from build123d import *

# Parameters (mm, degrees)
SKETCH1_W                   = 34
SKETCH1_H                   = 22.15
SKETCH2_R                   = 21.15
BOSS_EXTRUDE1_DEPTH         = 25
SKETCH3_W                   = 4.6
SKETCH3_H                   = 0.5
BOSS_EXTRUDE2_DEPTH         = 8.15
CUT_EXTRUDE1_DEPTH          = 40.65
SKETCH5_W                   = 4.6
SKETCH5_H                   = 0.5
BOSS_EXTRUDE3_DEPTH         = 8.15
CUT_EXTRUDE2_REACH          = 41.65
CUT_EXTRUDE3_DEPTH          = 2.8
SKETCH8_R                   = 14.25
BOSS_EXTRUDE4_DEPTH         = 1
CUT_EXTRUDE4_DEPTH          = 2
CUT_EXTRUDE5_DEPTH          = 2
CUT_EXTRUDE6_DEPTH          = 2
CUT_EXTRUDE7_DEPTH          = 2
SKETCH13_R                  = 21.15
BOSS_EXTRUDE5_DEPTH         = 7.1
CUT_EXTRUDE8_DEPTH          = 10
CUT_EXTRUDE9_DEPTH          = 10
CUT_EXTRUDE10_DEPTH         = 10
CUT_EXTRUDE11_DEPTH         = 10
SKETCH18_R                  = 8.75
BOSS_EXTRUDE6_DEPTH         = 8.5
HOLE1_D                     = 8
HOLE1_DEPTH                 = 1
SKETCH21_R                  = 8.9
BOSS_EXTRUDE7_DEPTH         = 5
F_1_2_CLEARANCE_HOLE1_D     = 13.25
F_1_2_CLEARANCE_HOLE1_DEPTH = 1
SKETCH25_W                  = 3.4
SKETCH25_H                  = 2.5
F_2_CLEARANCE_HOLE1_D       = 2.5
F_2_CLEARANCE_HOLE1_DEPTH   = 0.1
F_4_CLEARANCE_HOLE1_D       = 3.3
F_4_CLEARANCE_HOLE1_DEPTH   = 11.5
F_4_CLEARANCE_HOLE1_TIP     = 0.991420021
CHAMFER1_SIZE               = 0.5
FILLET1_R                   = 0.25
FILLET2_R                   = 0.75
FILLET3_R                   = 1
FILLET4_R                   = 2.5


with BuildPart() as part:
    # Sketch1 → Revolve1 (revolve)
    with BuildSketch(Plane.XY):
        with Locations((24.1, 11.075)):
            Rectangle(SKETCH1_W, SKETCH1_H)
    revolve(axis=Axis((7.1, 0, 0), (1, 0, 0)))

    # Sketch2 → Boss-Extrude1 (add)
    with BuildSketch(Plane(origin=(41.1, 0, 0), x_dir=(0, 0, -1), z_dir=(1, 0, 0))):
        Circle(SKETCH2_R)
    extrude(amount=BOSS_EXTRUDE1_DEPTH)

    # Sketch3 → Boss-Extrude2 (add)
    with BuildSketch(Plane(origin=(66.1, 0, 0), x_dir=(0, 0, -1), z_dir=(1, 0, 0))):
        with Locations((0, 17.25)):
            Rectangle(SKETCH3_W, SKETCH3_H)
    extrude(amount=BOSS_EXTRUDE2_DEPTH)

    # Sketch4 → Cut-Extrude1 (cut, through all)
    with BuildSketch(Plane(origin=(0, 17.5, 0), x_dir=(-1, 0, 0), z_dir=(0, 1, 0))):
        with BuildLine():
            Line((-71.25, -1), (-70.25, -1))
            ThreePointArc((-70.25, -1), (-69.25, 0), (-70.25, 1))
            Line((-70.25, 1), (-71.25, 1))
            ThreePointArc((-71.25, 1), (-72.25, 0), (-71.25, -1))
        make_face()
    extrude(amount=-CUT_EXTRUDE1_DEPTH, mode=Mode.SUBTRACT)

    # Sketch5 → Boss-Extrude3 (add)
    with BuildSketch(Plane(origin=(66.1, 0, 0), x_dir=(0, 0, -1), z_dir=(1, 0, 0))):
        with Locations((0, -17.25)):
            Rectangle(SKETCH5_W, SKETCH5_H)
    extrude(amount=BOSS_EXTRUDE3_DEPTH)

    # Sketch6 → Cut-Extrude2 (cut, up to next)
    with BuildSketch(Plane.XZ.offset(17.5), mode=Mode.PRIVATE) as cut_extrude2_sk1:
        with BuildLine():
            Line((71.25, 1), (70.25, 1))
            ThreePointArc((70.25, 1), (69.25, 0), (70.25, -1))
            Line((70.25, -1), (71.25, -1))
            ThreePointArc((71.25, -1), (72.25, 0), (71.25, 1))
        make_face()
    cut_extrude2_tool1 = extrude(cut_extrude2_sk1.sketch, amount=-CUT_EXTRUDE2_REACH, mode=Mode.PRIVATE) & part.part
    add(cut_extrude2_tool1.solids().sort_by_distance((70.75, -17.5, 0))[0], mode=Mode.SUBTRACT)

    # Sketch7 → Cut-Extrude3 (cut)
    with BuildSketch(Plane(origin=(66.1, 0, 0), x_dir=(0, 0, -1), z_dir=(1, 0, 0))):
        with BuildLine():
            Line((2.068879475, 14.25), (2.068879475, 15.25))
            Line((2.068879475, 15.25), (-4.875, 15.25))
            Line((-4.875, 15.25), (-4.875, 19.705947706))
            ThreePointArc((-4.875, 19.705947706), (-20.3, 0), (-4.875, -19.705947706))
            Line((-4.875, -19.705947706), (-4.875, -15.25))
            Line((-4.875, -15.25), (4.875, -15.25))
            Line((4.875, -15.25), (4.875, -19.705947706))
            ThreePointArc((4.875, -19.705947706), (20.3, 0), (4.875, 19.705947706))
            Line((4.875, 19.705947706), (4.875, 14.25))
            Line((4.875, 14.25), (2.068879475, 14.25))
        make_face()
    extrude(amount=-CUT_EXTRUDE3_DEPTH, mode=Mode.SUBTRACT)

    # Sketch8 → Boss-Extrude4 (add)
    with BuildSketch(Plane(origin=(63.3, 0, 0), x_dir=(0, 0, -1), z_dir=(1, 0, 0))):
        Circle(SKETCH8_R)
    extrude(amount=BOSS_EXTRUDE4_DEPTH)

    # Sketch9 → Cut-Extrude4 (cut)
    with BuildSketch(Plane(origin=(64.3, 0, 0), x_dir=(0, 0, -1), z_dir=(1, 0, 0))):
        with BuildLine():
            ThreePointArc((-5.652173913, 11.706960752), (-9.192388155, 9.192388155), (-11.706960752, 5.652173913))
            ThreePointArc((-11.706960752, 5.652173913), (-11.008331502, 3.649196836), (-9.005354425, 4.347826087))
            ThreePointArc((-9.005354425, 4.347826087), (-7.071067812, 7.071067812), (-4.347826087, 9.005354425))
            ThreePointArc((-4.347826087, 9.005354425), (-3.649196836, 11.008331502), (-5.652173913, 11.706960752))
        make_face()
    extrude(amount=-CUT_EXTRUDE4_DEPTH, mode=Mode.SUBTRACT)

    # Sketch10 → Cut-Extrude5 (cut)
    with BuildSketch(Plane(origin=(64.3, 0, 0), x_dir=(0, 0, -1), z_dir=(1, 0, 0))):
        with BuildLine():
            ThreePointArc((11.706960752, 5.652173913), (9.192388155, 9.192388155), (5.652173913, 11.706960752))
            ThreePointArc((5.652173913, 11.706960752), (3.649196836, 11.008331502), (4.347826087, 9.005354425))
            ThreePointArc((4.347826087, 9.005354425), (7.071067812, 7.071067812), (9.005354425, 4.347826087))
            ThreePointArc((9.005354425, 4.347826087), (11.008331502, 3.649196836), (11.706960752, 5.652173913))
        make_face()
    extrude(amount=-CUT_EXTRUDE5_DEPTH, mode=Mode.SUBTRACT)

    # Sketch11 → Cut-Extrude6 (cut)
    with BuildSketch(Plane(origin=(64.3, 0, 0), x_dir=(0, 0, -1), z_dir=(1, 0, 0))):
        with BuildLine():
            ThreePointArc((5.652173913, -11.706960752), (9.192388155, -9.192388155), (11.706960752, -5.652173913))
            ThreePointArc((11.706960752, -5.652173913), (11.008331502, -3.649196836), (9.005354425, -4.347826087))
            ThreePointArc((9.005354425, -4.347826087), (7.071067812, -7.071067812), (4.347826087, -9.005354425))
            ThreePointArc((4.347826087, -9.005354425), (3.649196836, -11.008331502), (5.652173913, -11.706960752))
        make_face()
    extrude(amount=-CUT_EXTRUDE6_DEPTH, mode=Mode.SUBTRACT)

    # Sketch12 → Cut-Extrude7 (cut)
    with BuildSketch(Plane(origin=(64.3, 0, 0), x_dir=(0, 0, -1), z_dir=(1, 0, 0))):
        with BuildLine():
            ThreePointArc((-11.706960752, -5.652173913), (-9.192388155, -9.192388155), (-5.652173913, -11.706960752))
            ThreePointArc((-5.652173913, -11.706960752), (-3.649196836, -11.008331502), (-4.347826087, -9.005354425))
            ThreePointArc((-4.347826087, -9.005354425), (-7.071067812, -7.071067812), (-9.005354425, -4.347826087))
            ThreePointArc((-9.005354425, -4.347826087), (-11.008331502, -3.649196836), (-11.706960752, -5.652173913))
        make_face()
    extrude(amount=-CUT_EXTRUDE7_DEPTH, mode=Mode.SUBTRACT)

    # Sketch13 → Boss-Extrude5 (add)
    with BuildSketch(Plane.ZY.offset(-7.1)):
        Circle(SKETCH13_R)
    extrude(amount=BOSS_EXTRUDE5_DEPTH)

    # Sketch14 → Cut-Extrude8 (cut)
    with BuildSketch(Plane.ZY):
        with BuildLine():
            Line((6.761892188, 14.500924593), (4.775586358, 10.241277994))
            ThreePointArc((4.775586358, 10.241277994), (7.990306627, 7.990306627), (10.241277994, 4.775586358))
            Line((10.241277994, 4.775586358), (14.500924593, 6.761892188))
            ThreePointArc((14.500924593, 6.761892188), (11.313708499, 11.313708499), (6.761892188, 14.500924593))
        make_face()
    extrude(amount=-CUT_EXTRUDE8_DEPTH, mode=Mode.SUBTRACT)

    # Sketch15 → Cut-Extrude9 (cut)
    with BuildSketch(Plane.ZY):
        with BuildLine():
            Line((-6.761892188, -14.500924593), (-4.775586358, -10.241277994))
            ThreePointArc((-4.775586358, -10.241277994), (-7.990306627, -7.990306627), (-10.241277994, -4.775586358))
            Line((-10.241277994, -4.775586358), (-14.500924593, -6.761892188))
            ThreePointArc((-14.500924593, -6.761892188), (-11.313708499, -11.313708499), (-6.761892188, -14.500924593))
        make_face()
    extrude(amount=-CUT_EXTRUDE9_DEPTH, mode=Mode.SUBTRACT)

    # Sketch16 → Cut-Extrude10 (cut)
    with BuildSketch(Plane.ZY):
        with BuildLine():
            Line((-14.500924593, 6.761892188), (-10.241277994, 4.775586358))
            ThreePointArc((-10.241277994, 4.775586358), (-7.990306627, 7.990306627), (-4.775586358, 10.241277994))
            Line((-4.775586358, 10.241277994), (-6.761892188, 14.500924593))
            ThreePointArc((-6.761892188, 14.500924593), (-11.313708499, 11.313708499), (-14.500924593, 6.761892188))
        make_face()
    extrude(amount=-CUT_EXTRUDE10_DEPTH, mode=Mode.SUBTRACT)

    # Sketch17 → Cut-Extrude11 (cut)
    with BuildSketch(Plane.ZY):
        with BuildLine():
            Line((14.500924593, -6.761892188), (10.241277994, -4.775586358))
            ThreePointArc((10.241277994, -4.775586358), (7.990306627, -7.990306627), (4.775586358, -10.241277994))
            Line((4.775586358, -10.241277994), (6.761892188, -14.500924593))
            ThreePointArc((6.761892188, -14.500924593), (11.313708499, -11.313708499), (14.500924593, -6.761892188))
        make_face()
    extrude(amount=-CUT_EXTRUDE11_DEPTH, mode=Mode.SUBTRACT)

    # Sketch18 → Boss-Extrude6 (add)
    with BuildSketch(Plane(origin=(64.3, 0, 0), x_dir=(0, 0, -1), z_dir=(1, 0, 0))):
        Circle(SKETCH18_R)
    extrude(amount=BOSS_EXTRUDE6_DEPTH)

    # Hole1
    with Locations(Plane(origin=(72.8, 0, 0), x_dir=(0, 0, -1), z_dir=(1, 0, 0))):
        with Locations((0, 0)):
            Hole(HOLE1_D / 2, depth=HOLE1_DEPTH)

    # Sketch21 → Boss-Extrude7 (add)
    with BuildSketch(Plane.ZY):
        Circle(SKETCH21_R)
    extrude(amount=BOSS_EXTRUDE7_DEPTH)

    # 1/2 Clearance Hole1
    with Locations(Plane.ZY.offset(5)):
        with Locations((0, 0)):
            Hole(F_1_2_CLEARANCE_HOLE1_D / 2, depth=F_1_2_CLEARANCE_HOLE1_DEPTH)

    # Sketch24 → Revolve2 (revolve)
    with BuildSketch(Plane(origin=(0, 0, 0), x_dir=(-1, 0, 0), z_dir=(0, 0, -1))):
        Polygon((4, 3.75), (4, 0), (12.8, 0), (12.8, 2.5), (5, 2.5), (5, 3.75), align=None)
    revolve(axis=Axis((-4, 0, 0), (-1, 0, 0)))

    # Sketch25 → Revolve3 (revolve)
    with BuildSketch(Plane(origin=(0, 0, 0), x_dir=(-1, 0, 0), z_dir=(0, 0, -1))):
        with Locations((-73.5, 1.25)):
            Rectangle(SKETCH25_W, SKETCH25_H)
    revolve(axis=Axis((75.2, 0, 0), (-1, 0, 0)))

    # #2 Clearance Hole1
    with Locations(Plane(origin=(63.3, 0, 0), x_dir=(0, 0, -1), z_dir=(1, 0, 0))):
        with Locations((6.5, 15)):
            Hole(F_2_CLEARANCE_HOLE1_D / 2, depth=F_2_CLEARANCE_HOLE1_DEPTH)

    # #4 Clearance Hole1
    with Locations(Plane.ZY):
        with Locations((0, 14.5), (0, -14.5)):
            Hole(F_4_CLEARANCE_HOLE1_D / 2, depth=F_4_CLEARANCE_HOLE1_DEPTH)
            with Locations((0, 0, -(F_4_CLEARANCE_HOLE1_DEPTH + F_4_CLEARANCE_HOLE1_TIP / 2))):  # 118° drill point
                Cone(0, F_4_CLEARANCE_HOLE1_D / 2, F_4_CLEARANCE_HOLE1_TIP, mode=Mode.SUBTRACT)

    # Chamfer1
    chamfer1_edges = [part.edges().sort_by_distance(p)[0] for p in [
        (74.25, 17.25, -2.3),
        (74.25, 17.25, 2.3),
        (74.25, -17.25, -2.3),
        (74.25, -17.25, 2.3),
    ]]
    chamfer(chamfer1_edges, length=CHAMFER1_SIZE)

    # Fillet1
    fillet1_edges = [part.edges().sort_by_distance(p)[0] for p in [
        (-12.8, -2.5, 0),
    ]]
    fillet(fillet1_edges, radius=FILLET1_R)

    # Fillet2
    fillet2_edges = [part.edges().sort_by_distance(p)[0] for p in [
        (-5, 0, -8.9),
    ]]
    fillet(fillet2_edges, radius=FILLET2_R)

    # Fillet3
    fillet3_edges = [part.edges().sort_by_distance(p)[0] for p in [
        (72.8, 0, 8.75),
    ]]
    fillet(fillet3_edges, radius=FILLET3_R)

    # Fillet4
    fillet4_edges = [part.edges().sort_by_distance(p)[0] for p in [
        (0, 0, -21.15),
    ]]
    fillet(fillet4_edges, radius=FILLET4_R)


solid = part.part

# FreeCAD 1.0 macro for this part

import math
import FreeCAD as App
import Part
import Sketcher

V = App.Vector
Q = App.Units.Quantity


def edges_at(feature, points):
    """Names of the edges that pass closest to the given points."""
    edges = feature.Shape.Edges
    near = lambda p: min(range(len(edges)), key=lambda i: edges[i].distToShape(Part.Vertex(*p))[0])
    return sorted({f"Edge{near(p) + 1}" for p in points})


def add_polygon(sketch, points):
    """Adds a closed chain of lines whose ends are joined by coincident constraints."""
    first, n = sketch.GeometryCount, len(points)
    for a, b in zip(points, points[1:] + points[:1]):
        sketch.addGeometry(Part.LineSegment(App.Vector(*a, 0), App.Vector(*b, 0)), False)
    for i in range(n):
        sketch.addConstraint(Sketcher.Constraint("Coincident", first + i, 2, first + (i + 1) % n, 1))

doc = App.newDocument("Part")
body = doc.addObject("PartDesign::Body", "Body")

# Sketch on XY plane
sketch1 = body.newObject("Sketcher::SketchObject", "Sketch")
sketch1.AttachmentSupport = (doc.getObject("XY_Plane"), [""])
sketch1.MapMode = "FlatFace"
add_polygon(sketch1, [(7, 22), (7, 0), (41, 0), (41, 22)])  # lines 0-3
sketch1.addConstraint(Sketcher.Constraint("Vertical", 0))
sketch1.addConstraint(Sketcher.Constraint("Horizontal", 1))
sketch1.addConstraint(Sketcher.Constraint("Vertical", 2))
sketch1.addConstraint(Sketcher.Constraint("Horizontal", 3))
sketch1.addConstraint(Sketcher.Constraint("PointOnObject", 0, 2, -1))
sketch1.addConstraint(Sketcher.Constraint("DistanceX", 1, 1, 1, 2, 34.0))
sketch1.addConstraint(Sketcher.Constraint("DistanceY", 0, 2, 0, 1, 22.15))
sketch1.addConstraint(Sketcher.Constraint("DistanceX", -1, 1, 0, 2, 7.1))
revolution = body.newObject("PartDesign::Revolution", "Revolution")
revolution.Profile = sketch1
revolution.ReferenceAxis = (sketch1, ["H_Axis"])
revolution.Angle = 360

# Sketch on YZ plane
sketch2 = body.newObject("Sketcher::SketchObject", "Sketch001")
sketch2.AttachmentSupport = (doc.getObject("YZ_Plane"), [""])
sketch2.MapMode = "FlatFace"
sketch2.AttachmentOffset = App.Placement(V(0, 0, 41.1), App.Rotation())
sketch2.addGeometry(Part.Circle(V(0, 0, 0), V(0, 0, 1), 21), False)
sketch2.addConstraint(Sketcher.Constraint("Coincident", 0, 3, -1, 1))
sketch2.addConstraint(Sketcher.Constraint("Diameter", 0, 42.3))
pad1 = body.newObject("PartDesign::Pad", "Pad")
pad1.Profile = sketch2
pad1.Length = 25

# Sketch on YZ plane
sketch3 = body.newObject("Sketcher::SketchObject", "Sketch002")
sketch3.AttachmentSupport = (doc.getObject("YZ_Plane"), [""])
sketch3.MapMode = "FlatFace"
sketch3.AttachmentOffset = App.Placement(V(0, 0, 66.1), App.Rotation())
add_polygon(sketch3, [(17.5, 2.3), (17, 2.3), (17, -2.3), (17.5, -2.3)])  # lines 0-3
sketch3.addConstraint(Sketcher.Constraint("Horizontal", 0))
sketch3.addConstraint(Sketcher.Constraint("Vertical", 1))
sketch3.addConstraint(Sketcher.Constraint("Horizontal", 2))
sketch3.addConstraint(Sketcher.Constraint("Vertical", 3))
sketch3.addConstraint(Sketcher.Constraint("DistanceX", 0, 2, 0, 1, 0.5))
sketch3.addConstraint(Sketcher.Constraint("DistanceY", 1, 2, 1, 1, 4.6))
sketch3.addConstraint(Sketcher.Constraint("DistanceX", -1, 1, 0, 2, 17.0))
sketch3.addConstraint(Sketcher.Constraint("DistanceY", -1, 1, 0, 2, 2.3))
pad2 = body.newObject("PartDesign::Pad", "Pad001")
pad2.Profile = sketch3
pad2.Length = 8.15

# Sketch on XZ plane
sketch4 = body.newObject("Sketcher::SketchObject", "Sketch003")
sketch4.AttachmentSupport = (doc.getObject("XZ_Plane"), [""])
sketch4.MapMode = "FlatFace"
sketch4.AttachmentOffset = App.Placement(V(0, 0, -17.5), App.Rotation())
sketch4.addGeometry(Part.LineSegment(V(71.2, -1, 0), V(70.2, -1, 0)), False)
sketch4.addGeometry(Part.ArcOfCircle(Part.Circle(V(70.2, 0, 0), V(0, 0, 1), 1), math.radians(90), math.radians(270)), False)
sketch4.addGeometry(Part.LineSegment(V(70.2, 1, 0), V(71.2, 1, 0)), False)
sketch4.addGeometry(Part.ArcOfCircle(Part.Circle(V(71.2, 0, 0), V(0, 0, 1), 1), math.radians(-90), math.radians(90)), False)
sketch4.addConstraint(Sketcher.Constraint("Tangent", 0, 2, 1, 2))
sketch4.addConstraint(Sketcher.Constraint("Tangent", 1, 1, 2, 1))
sketch4.addConstraint(Sketcher.Constraint("Tangent", 2, 2, 3, 2))
sketch4.addConstraint(Sketcher.Constraint("Tangent", 3, 1, 0, 1))
sketch4.addConstraint(Sketcher.Constraint("Horizontal", 0))
sketch4.addConstraint(Sketcher.Constraint("Horizontal", 2))
sketch4.addConstraint(Sketcher.Constraint("PointOnObject", 1, 3, -1))
sketch4.addConstraint(Sketcher.Constraint("Radius", 1, 1.0))
sketch4.addConstraint(Sketcher.Constraint("DistanceX", 0, 2, 0, 1, 1.0))
sketch4.addConstraint(Sketcher.Constraint("DistanceX", -1, 1, 1, 3, 70.25))
pocket1 = body.newObject("PartDesign::Pocket", "Pocket")
pocket1.Profile = sketch4
pocket1.Type = "ThroughAll"
pocket1.Reversed = True

# Sketch on YZ plane
sketch5 = body.newObject("Sketcher::SketchObject", "Sketch004")
sketch5.AttachmentSupport = (doc.getObject("YZ_Plane"), [""])
sketch5.MapMode = "FlatFace"
sketch5.AttachmentOffset = App.Placement(V(0, 0, 66.1), App.Rotation())
add_polygon(sketch5, [(-17, 2.3), (-17.5, 2.3), (-17.5, -2.3), (-17, -2.3)])  # lines 0-3
sketch5.addConstraint(Sketcher.Constraint("Horizontal", 0))
sketch5.addConstraint(Sketcher.Constraint("Vertical", 1))
sketch5.addConstraint(Sketcher.Constraint("Horizontal", 2))
sketch5.addConstraint(Sketcher.Constraint("Vertical", 3))
sketch5.addConstraint(Sketcher.Constraint("DistanceX", 0, 2, 0, 1, 0.5))
sketch5.addConstraint(Sketcher.Constraint("DistanceY", 1, 2, 1, 1, 4.6))
sketch5.addConstraint(Sketcher.Constraint("DistanceX", 2, 2, -1, 1, 17.0))
sketch5.addConstraint(Sketcher.Constraint("DistanceY", -1, 1, 0, 2, 2.3))
pad3 = body.newObject("PartDesign::Pad", "Pad002")
pad3.Profile = sketch5
pad3.Length = 8.15

# Sketch on XZ plane
sketch6 = body.newObject("Sketcher::SketchObject", "Sketch005")
sketch6.AttachmentSupport = (doc.getObject("XZ_Plane"), [""])
sketch6.MapMode = "FlatFace"
sketch6.AttachmentOffset = App.Placement(V(0, 0, 17.5), App.Rotation())
sketch6.addGeometry(Part.LineSegment(V(71.2, 1, 0), V(70.2, 1, 0)), False)
sketch6.addGeometry(Part.ArcOfCircle(Part.Circle(V(70.2, 0, 0), V(0, 0, 1), 1), math.radians(90), math.radians(270)), False)
sketch6.addGeometry(Part.LineSegment(V(70.2, -1, 0), V(71.2, -1, 0)), False)
sketch6.addGeometry(Part.ArcOfCircle(Part.Circle(V(71.2, 0, 0), V(0, 0, 1), 1), math.radians(-90), math.radians(90)), False)
sketch6.addConstraint(Sketcher.Constraint("Tangent", 0, 2, 1, 1))
sketch6.addConstraint(Sketcher.Constraint("Tangent", 1, 2, 2, 1))
sketch6.addConstraint(Sketcher.Constraint("Tangent", 2, 2, 3, 1))
sketch6.addConstraint(Sketcher.Constraint("Tangent", 3, 2, 0, 1))
sketch6.addConstraint(Sketcher.Constraint("Horizontal", 0))
sketch6.addConstraint(Sketcher.Constraint("Horizontal", 2))
sketch6.addConstraint(Sketcher.Constraint("PointOnObject", 1, 3, -1))
sketch6.addConstraint(Sketcher.Constraint("Radius", 1, 1.0))
sketch6.addConstraint(Sketcher.Constraint("DistanceX", 0, 2, 0, 1, 1.0))
sketch6.addConstraint(Sketcher.Constraint("DistanceX", -1, 1, 1, 3, 70.25))
pocket2 = body.newObject("PartDesign::Pocket", "Pocket001")
pocket2.Profile = sketch6
pocket2.Type = "UpToFirst"

# Sketch on YZ plane
sketch7 = body.newObject("Sketcher::SketchObject", "Sketch006")
sketch7.AttachmentSupport = (doc.getObject("YZ_Plane"), [""])
sketch7.MapMode = "FlatFace"
sketch7.AttachmentOffset = App.Placement(V(0, 0, 66.1), App.Rotation())
sketch7.addGeometry(Part.LineSegment(V(14.2, -2.1, 0), V(15.2, -2.1, 0)), False)
sketch7.addGeometry(Part.LineSegment(V(15.2, -2.1, 0), V(15.2, 4.9, 0)), False)
sketch7.addGeometry(Part.LineSegment(V(15.2, 4.9, 0), V(19.7, 4.9, 0)), False)
sketch7.addGeometry(Part.ArcOfCircle(Part.Circle(V(0, 0, 0), V(0, 0, 1), 20.3), math.radians(14), math.radians(166)), False)
sketch7.addGeometry(Part.LineSegment(V(-19.7, 4.9, 0), V(-15.2, 4.9, 0)), False)
sketch7.addGeometry(Part.LineSegment(V(-15.2, 4.9, 0), V(-15.2, -4.9, 0)), False)
sketch7.addGeometry(Part.LineSegment(V(-15.2, -4.9, 0), V(-19.7, -4.9, 0)), False)
sketch7.addGeometry(Part.ArcOfCircle(Part.Circle(V(0, 0, 0), V(0, 0, 1), 20.3), math.radians(-166), math.radians(-14)), False)
sketch7.addGeometry(Part.LineSegment(V(19.7, -4.9, 0), V(14.2, -4.9, 0)), False)
sketch7.addGeometry(Part.LineSegment(V(14.2, -4.9, 0), V(14.2, -2.1, 0)), False)
sketch7.addConstraint(Sketcher.Constraint("Coincident", 0, 2, 1, 1))
sketch7.addConstraint(Sketcher.Constraint("Coincident", 1, 2, 2, 1))
sketch7.addConstraint(Sketcher.Constraint("Coincident", 2, 2, 3, 1))
sketch7.addConstraint(Sketcher.Constraint("Coincident", 3, 2, 4, 1))
sketch7.addConstraint(Sketcher.Constraint("Coincident", 4, 2, 5, 1))
sketch7.addConstraint(Sketcher.Constraint("Coincident", 5, 2, 6, 1))
sketch7.addConstraint(Sketcher.Constraint("Coincident", 6, 2, 7, 1))
sketch7.addConstraint(Sketcher.Constraint("Coincident", 7, 2, 8, 1))
sketch7.addConstraint(Sketcher.Constraint("Coincident", 8, 2, 9, 1))
sketch7.addConstraint(Sketcher.Constraint("Coincident", 9, 2, 0, 1))
sketch7.addConstraint(Sketcher.Constraint("Horizontal", 0))
sketch7.addConstraint(Sketcher.Constraint("Vertical", 1))
sketch7.addConstraint(Sketcher.Constraint("Horizontal", 2))
sketch7.addConstraint(Sketcher.Constraint("Horizontal", 4))
sketch7.addConstraint(Sketcher.Constraint("Vertical", 5))
sketch7.addConstraint(Sketcher.Constraint("Horizontal", 6))
sketch7.addConstraint(Sketcher.Constraint("Horizontal", 8))
sketch7.addConstraint(Sketcher.Constraint("Vertical", 9))
sketch7.addConstraint(Sketcher.Constraint("Coincident", 3, 3, -1, 1))
sketch7.addConstraint(Sketcher.Constraint("Coincident", 7, 3, -1, 1))
sketch7.addConstraint(Sketcher.Constraint("Equal", 3, 7))
sketch7.addConstraint(Sketcher.Constraint("Symmetric", 1, 2, 5, 2, -1, 1))
sketch7.addConstraint(Sketcher.Constraint("Horizontal", 2, 2, 3, 2))
sketch7.addConstraint(Sketcher.Constraint("Horizontal", 6, 2, 7, 2))
sketch7.addConstraint(Sketcher.Constraint("Radius", 3, 20.3))
sketch7.addConstraint(Sketcher.Constraint("DistanceX", 0, 1, 0, 2, 1.0))
sketch7.addConstraint(Sketcher.Constraint("DistanceY", 5, 2, 5, 1, 9.75))
sketch7.addConstraint(Sketcher.Constraint("DistanceX", 4, 2, 1, 2, 30.5))
sketch7.addConstraint(Sketcher.Constraint("DistanceY", 1, 1, 1, 2, 6.943879))
pocket3 = body.newObject("PartDesign::Pocket", "Pocket002")
pocket3.Profile = sketch7
pocket3.Length = 2.8

# Sketch on YZ plane
sketch8 = body.newObject("Sketcher::SketchObject", "Sketch007")
sketch8.AttachmentSupport = (doc.getObject("YZ_Plane"), [""])
sketch8.MapMode = "FlatFace"
sketch8.AttachmentOffset = App.Placement(V(0, 0, 63.3), App.Rotation())
sketch8.addGeometry(Part.Circle(V(0, 0, 0), V(0, 0, 1), 14), False)
sketch8.addConstraint(Sketcher.Constraint("Coincident", 0, 3, -1, 1))
sketch8.addConstraint(Sketcher.Constraint("Diameter", 0, 28.5))
pad4 = body.newObject("PartDesign::Pad", "Pad003")
pad4.Profile = sketch8
pad4.Length = 1

# Sketch on YZ plane
sketch9 = body.newObject("Sketcher::SketchObject", "Sketch008")
sketch9.AttachmentSupport = (doc.getObject("YZ_Plane"), [""])
sketch9.MapMode = "FlatFace"
sketch9.AttachmentOffset = App.Placement(V(0, 0, 64.3), App.Rotation())
sketch9.addGeometry(Part.ArcOfCircle(Part.Circle(V(0, 0, 0), V(0, 0, 1), 13), math.radians(26), math.radians(64)), False)
sketch9.addGeometry(Part.ArcOfCircle(Part.Circle(V(5, 10.4, 0), V(0, 0, 1), 1.5), math.radians(64), math.radians(244)), False)
sketch9.addGeometry(Part.ArcOfCircle(Part.Circle(V(0, 0, 0), V(0, 0, 1), 10), math.radians(26), math.radians(64)), False)
sketch9.addGeometry(Part.ArcOfCircle(Part.Circle(V(10.4, 5, 0), V(0, 0, 1), 1.5), math.radians(-154), math.radians(26)), False)
sketch9.addConstraint(Sketcher.Constraint("Tangent", 0, 2, 1, 1))
sketch9.addConstraint(Sketcher.Constraint("Tangent", 1, 2, 2, 2))
sketch9.addConstraint(Sketcher.Constraint("Tangent", 2, 1, 3, 1))
sketch9.addConstraint(Sketcher.Constraint("Tangent", 3, 2, 0, 1))
sketch9.addConstraint(Sketcher.Constraint("Coincident", 0, 3, -1, 1))
sketch9.addConstraint(Sketcher.Constraint("Coincident", 2, 3, -1, 1))
sketch9.addConstraint(Sketcher.Constraint("Radius", 0, 13.0))
sketch9.addConstraint(Sketcher.Constraint("Radius", 2, 10.0))
sketch9.addConstraint(Sketcher.Constraint("DistanceX", -1, 1, 1, 3, 5.0))
sketch9.addConstraint(Sketcher.Constraint("DistanceY", -1, 1, 3, 3, 5.0))
pocket4 = body.newObject("PartDesign::Pocket", "Pocket003")
pocket4.Profile = sketch9
pocket4.Length = 2

# Sketch on YZ plane
sketch10 = body.newObject("Sketcher::SketchObject", "Sketch009")
sketch10.AttachmentSupport = (doc.getObject("YZ_Plane"), [""])
sketch10.MapMode = "FlatFace"
sketch10.AttachmentOffset = App.Placement(V(0, 0, 64.3), App.Rotation())
sketch10.addGeometry(Part.ArcOfCircle(Part.Circle(V(0, 0, 0), V(0, 0, 1), 13), math.radians(-64), math.radians(-26)), False)
sketch10.addGeometry(Part.ArcOfCircle(Part.Circle(V(10.4, -5, 0), V(0, 0, 1), 1.5), math.radians(-26), math.radians(154)), False)
sketch10.addGeometry(Part.ArcOfCircle(Part.Circle(V(0, 0, 0), V(0, 0, 1), 10), math.radians(-64), math.radians(-26)), False)
sketch10.addGeometry(Part.ArcOfCircle(Part.Circle(V(5, -10.4, 0), V(0, 0, 1), 1.5), math.radians(116), math.radians(296)), False)
sketch10.addConstraint(Sketcher.Constraint("Tangent", 0, 2, 1, 1))
sketch10.addConstraint(Sketcher.Constraint("Tangent", 1, 2, 2, 2))
sketch10.addConstraint(Sketcher.Constraint("Tangent", 2, 1, 3, 1))
sketch10.addConstraint(Sketcher.Constraint("Tangent", 3, 2, 0, 1))
sketch10.addConstraint(Sketcher.Constraint("Coincident", 0, 3, -1, 1))
sketch10.addConstraint(Sketcher.Constraint("Coincident", 2, 3, -1, 1))
sketch10.addConstraint(Sketcher.Constraint("Radius", 0, 13.0))
sketch10.addConstraint(Sketcher.Constraint("Radius", 2, 10.0))
sketch10.addConstraint(Sketcher.Constraint("DistanceY", 1, 3, -1, 1, 5.0))
sketch10.addConstraint(Sketcher.Constraint("DistanceX", -1, 1, 3, 3, 5.0))
pocket5 = body.newObject("PartDesign::Pocket", "Pocket004")
pocket5.Profile = sketch10
pocket5.Length = 2

# Sketch on YZ plane
sketch11 = body.newObject("Sketcher::SketchObject", "Sketch010")
sketch11.AttachmentSupport = (doc.getObject("YZ_Plane"), [""])
sketch11.MapMode = "FlatFace"
sketch11.AttachmentOffset = App.Placement(V(0, 0, 64.3), App.Rotation())
sketch11.addGeometry(Part.ArcOfCircle(Part.Circle(V(0, 0, 0), V(0, 0, 1), 13), math.radians(-154), math.radians(-116)), False)
sketch11.addGeometry(Part.ArcOfCircle(Part.Circle(V(-5, -10.4, 0), V(0, 0, 1), 1.5), math.radians(-116), math.radians(64)), False)
sketch11.addGeometry(Part.ArcOfCircle(Part.Circle(V(0, 0, 0), V(0, 0, 1), 10), math.radians(-154), math.radians(-116)), False)
sketch11.addGeometry(Part.ArcOfCircle(Part.Circle(V(-10.4, -5, 0), V(0, 0, 1), 1.5), math.radians(26), math.radians(206)), False)
sketch11.addConstraint(Sketcher.Constraint("Tangent", 0, 2, 1, 1))
sketch11.addConstraint(Sketcher.Constraint("Tangent", 1, 2, 2, 2))
sketch11.addConstraint(Sketcher.Constraint("Tangent", 2, 1, 3, 1))
sketch11.addConstraint(Sketcher.Constraint("Tangent", 3, 2, 0, 1))
sketch11.addConstraint(Sketcher.Constraint("Coincident", 0, 3, -1, 1))
sketch11.addConstraint(Sketcher.Constraint("Coincident", 2, 3, -1, 1))
sketch11.addConstraint(Sketcher.Constraint("Radius", 0, 13.0))
sketch11.addConstraint(Sketcher.Constraint("Radius", 2, 10.0))
sketch11.addConstraint(Sketcher.Constraint("DistanceX", 1, 3, -1, 1, 5.0))
sketch11.addConstraint(Sketcher.Constraint("DistanceY", 3, 3, -1, 1, 5.0))
pocket6 = body.newObject("PartDesign::Pocket", "Pocket005")
pocket6.Profile = sketch11
pocket6.Length = 2

# Sketch on YZ plane
sketch12 = body.newObject("Sketcher::SketchObject", "Sketch011")
sketch12.AttachmentSupport = (doc.getObject("YZ_Plane"), [""])
sketch12.MapMode = "FlatFace"
sketch12.AttachmentOffset = App.Placement(V(0, 0, 64.3), App.Rotation())
sketch12.addGeometry(Part.ArcOfCircle(Part.Circle(V(0, 0, 0), V(0, 0, 1), 13), math.radians(116), math.radians(154)), False)
sketch12.addGeometry(Part.ArcOfCircle(Part.Circle(V(-10.4, 5, 0), V(0, 0, 1), 1.5), math.radians(154), math.radians(334)), False)
sketch12.addGeometry(Part.ArcOfCircle(Part.Circle(V(0, 0, 0), V(0, 0, 1), 10), math.radians(116), math.radians(154)), False)
sketch12.addGeometry(Part.ArcOfCircle(Part.Circle(V(-5, 10.4, 0), V(0, 0, 1), 1.5), math.radians(-64), math.radians(116)), False)
sketch12.addConstraint(Sketcher.Constraint("Tangent", 0, 2, 1, 1))
sketch12.addConstraint(Sketcher.Constraint("Tangent", 1, 2, 2, 2))
sketch12.addConstraint(Sketcher.Constraint("Tangent", 2, 1, 3, 1))
sketch12.addConstraint(Sketcher.Constraint("Tangent", 3, 2, 0, 1))
sketch12.addConstraint(Sketcher.Constraint("Coincident", 0, 3, -1, 1))
sketch12.addConstraint(Sketcher.Constraint("Coincident", 2, 3, -1, 1))
sketch12.addConstraint(Sketcher.Constraint("Radius", 0, 13.0))
sketch12.addConstraint(Sketcher.Constraint("Radius", 2, 10.0))
sketch12.addConstraint(Sketcher.Constraint("DistanceY", -1, 1, 1, 3, 5.0))
sketch12.addConstraint(Sketcher.Constraint("DistanceX", 3, 3, -1, 1, 5.0))
pocket7 = body.newObject("PartDesign::Pocket", "Pocket006")
pocket7.Profile = sketch12
pocket7.Length = 2

# Sketch on YZ plane
sketch13 = body.newObject("Sketcher::SketchObject", "Sketch012")
sketch13.AttachmentSupport = (doc.getObject("YZ_Plane"), [""])
sketch13.MapMode = "FlatFace"
sketch13.AttachmentOffset = App.Placement(V(0, 0, 7.1), App.Rotation())
sketch13.addGeometry(Part.Circle(V(0, 0, 0), V(0, 0, 1), 21), False)
sketch13.addConstraint(Sketcher.Constraint("Coincident", 0, 3, -1, 1))
sketch13.addConstraint(Sketcher.Constraint("Diameter", 0, 42.3))
pad5 = body.newObject("PartDesign::Pad", "Pad004")
pad5.Profile = sketch13
pad5.Length = 7.1
pad5.Reversed = True

# Sketch on YZ plane
sketch14 = body.newObject("Sketcher::SketchObject", "Sketch013")
sketch14.AttachmentSupport = (doc.getObject("YZ_Plane"), [""])
sketch14.MapMode = "FlatFace"
sketch14.addGeometry(Part.LineSegment(V(14.5, 6.8, 0), V(10.2, 4.8, 0)), False)
sketch14.addGeometry(Part.ArcOfCircle(Part.Circle(V(0, 0, 0), V(0, 0, 1), 11.3), math.radians(25), math.radians(65)), False)
sketch14.addGeometry(Part.LineSegment(V(4.8, 10.2, 0), V(6.8, 14.5, 0)), False)
sketch14.addGeometry(Part.ArcOfCircle(Part.Circle(V(0, 0, 0), V(0, 0, 1), 16), math.radians(25), math.radians(65)), False)
sketch14.addConstraint(Sketcher.Constraint("Coincident", 0, 2, 1, 1))
sketch14.addConstraint(Sketcher.Constraint("Coincident", 1, 2, 2, 1))
sketch14.addConstraint(Sketcher.Constraint("Coincident", 2, 2, 3, 2))
sketch14.addConstraint(Sketcher.Constraint("Coincident", 3, 1, 0, 1))
sketch14.addConstraint(Sketcher.Constraint("Coincident", 1, 3, -1, 1))
sketch14.addConstraint(Sketcher.Constraint("Coincident", 3, 3, -1, 1))
sketch14.addConstraint(Sketcher.Constraint("Radius", 3, 16.0))
sketch14.addConstraint(Sketcher.Constraint("Radius", 1, 11.3))
sketch14.addConstraint(Sketcher.Constraint("Angle", 0, Q("-155 deg")))
sketch14.addConstraint(Sketcher.Constraint("Angle", 2, Q("65 deg")))
sketch14.addConstraint(Sketcher.Constraint("DistanceX", 1, 3, 0, 2, 10.241278))
sketch14.addConstraint(Sketcher.Constraint("DistanceX", 1, 2, 0, 2, 5.465692))
pocket8 = body.newObject("PartDesign::Pocket", "Pocket007")
pocket8.Profile = sketch14
pocket8.Length = 10
pocket8.Reversed = True

# Sketch on YZ plane
sketch15 = body.newObject("Sketcher::SketchObject", "Sketch014")
sketch15.AttachmentSupport = (doc.getObject("YZ_Plane"), [""])
sketch15.MapMode = "FlatFace"
sketch15.addGeometry(Part.LineSegment(V(-14.5, -6.8, 0), V(-10.2, -4.8, 0)), False)
sketch15.addGeometry(Part.ArcOfCircle(Part.Circle(V(0, 0, 0), V(0, 0, 1), 11.3), math.radians(-155), math.radians(-115)), False)
sketch15.addGeometry(Part.LineSegment(V(-4.8, -10.2, 0), V(-6.8, -14.5, 0)), False)
sketch15.addGeometry(Part.ArcOfCircle(Part.Circle(V(0, 0, 0), V(0, 0, 1), 16), math.radians(-155), math.radians(-115)), False)
sketch15.addConstraint(Sketcher.Constraint("Coincident", 0, 2, 1, 1))
sketch15.addConstraint(Sketcher.Constraint("Coincident", 1, 2, 2, 1))
sketch15.addConstraint(Sketcher.Constraint("Coincident", 2, 2, 3, 2))
sketch15.addConstraint(Sketcher.Constraint("Coincident", 3, 1, 0, 1))
sketch15.addConstraint(Sketcher.Constraint("Coincident", 1, 3, -1, 1))
sketch15.addConstraint(Sketcher.Constraint("Coincident", 3, 3, -1, 1))
sketch15.addConstraint(Sketcher.Constraint("Radius", 3, 16.0))
sketch15.addConstraint(Sketcher.Constraint("Radius", 1, 11.3))
sketch15.addConstraint(Sketcher.Constraint("Angle", 0, Q("25 deg")))
sketch15.addConstraint(Sketcher.Constraint("Angle", 2, Q("-115 deg")))
sketch15.addConstraint(Sketcher.Constraint("DistanceX", 0, 2, 1, 3, 10.241278))
sketch15.addConstraint(Sketcher.Constraint("DistanceX", 0, 2, 1, 2, 5.465692))
pocket9 = body.newObject("PartDesign::Pocket", "Pocket008")
pocket9.Profile = sketch15
pocket9.Length = 10
pocket9.Reversed = True

# Sketch on YZ plane
sketch16 = body.newObject("Sketcher::SketchObject", "Sketch015")
sketch16.AttachmentSupport = (doc.getObject("YZ_Plane"), [""])
sketch16.MapMode = "FlatFace"
sketch16.addGeometry(Part.LineSegment(V(6.8, -14.5, 0), V(4.8, -10.2, 0)), False)
sketch16.addGeometry(Part.ArcOfCircle(Part.Circle(V(0, 0, 0), V(0, 0, 1), 11.3), math.radians(-65), math.radians(-25)), False)
sketch16.addGeometry(Part.LineSegment(V(10.2, -4.8, 0), V(14.5, -6.8, 0)), False)
sketch16.addGeometry(Part.ArcOfCircle(Part.Circle(V(0, 0, 0), V(0, 0, 1), 16), math.radians(-65), math.radians(-25)), False)
sketch16.addConstraint(Sketcher.Constraint("Coincident", 0, 2, 1, 1))
sketch16.addConstraint(Sketcher.Constraint("Coincident", 1, 2, 2, 1))
sketch16.addConstraint(Sketcher.Constraint("Coincident", 2, 2, 3, 2))
sketch16.addConstraint(Sketcher.Constraint("Coincident", 3, 1, 0, 1))
sketch16.addConstraint(Sketcher.Constraint("Coincident", 1, 3, -1, 1))
sketch16.addConstraint(Sketcher.Constraint("Coincident", 3, 3, -1, 1))
sketch16.addConstraint(Sketcher.Constraint("Radius", 3, 16.0))
sketch16.addConstraint(Sketcher.Constraint("Radius", 1, 11.3))
sketch16.addConstraint(Sketcher.Constraint("Angle", 0, Q("115 deg")))
sketch16.addConstraint(Sketcher.Constraint("Angle", 2, Q("-25 deg")))
sketch16.addConstraint(Sketcher.Constraint("DistanceY", 0, 2, 1, 3, 10.241278))
sketch16.addConstraint(Sketcher.Constraint("DistanceX", 0, 2, 1, 2, 5.465692))
pocket10 = body.newObject("PartDesign::Pocket", "Pocket009")
pocket10.Profile = sketch16
pocket10.Length = 10
pocket10.Reversed = True

# Sketch on YZ plane
sketch17 = body.newObject("Sketcher::SketchObject", "Sketch016")
sketch17.AttachmentSupport = (doc.getObject("YZ_Plane"), [""])
sketch17.MapMode = "FlatFace"
sketch17.addGeometry(Part.LineSegment(V(-6.8, 14.5, 0), V(-4.8, 10.2, 0)), False)
sketch17.addGeometry(Part.ArcOfCircle(Part.Circle(V(0, 0, 0), V(0, 0, 1), 11.3), math.radians(115), math.radians(155)), False)
sketch17.addGeometry(Part.LineSegment(V(-10.2, 4.8, 0), V(-14.5, 6.8, 0)), False)
sketch17.addGeometry(Part.ArcOfCircle(Part.Circle(V(0, 0, 0), V(0, 0, 1), 16), math.radians(115), math.radians(155)), False)
sketch17.addConstraint(Sketcher.Constraint("Coincident", 0, 2, 1, 1))
sketch17.addConstraint(Sketcher.Constraint("Coincident", 1, 2, 2, 1))
sketch17.addConstraint(Sketcher.Constraint("Coincident", 2, 2, 3, 2))
sketch17.addConstraint(Sketcher.Constraint("Coincident", 3, 1, 0, 1))
sketch17.addConstraint(Sketcher.Constraint("Coincident", 1, 3, -1, 1))
sketch17.addConstraint(Sketcher.Constraint("Coincident", 3, 3, -1, 1))
sketch17.addConstraint(Sketcher.Constraint("Radius", 3, 16.0))
sketch17.addConstraint(Sketcher.Constraint("Radius", 1, 11.3))
sketch17.addConstraint(Sketcher.Constraint("Angle", 0, Q("-65 deg")))
sketch17.addConstraint(Sketcher.Constraint("Angle", 2, Q("155 deg")))
sketch17.addConstraint(Sketcher.Constraint("DistanceY", 1, 3, 0, 2, 10.241278))
sketch17.addConstraint(Sketcher.Constraint("DistanceX", 1, 2, 0, 2, 5.465692))
pocket11 = body.newObject("PartDesign::Pocket", "Pocket010")
pocket11.Profile = sketch17
pocket11.Length = 10
pocket11.Reversed = True

# Sketch on YZ plane
sketch18 = body.newObject("Sketcher::SketchObject", "Sketch017")
sketch18.AttachmentSupport = (doc.getObject("YZ_Plane"), [""])
sketch18.MapMode = "FlatFace"
sketch18.AttachmentOffset = App.Placement(V(0, 0, 64.3), App.Rotation())
sketch18.addGeometry(Part.Circle(V(0, 0, 0), V(0, 0, 1), 9), False)
sketch18.addConstraint(Sketcher.Constraint("Coincident", 0, 3, -1, 1))
sketch18.addConstraint(Sketcher.Constraint("Diameter", 0, 17.5))
pad6 = body.newObject("PartDesign::Pad", "Pad005")
pad6.Profile = sketch18
pad6.Length = 8.5

# Sketch on YZ plane
sketch19 = body.newObject("Sketcher::SketchObject", "Sketch018")
sketch19.AttachmentSupport = (doc.getObject("YZ_Plane"), [""])
sketch19.MapMode = "FlatFace"
sketch19.AttachmentOffset = App.Placement(V(0, 0, 72.8), App.Rotation())
sketch19.addGeometry(Part.Circle(V(0, 0, 0), V(0, 0, 1), 4), False)
sketch19.addConstraint(Sketcher.Constraint("Coincident", 0, 3, -1, 1))
sketch19.addConstraint(Sketcher.Constraint("Diameter", 0, 8.0))
doc.recompute()
hole = body.newObject("PartDesign::Hole", "Hole")
hole.Profile = sketch19
hole.ThreadType = "None"
hole.Diameter = 8
hole.DepthType = "Dimension"
hole.Depth = 1
hole.DrillPoint = "Flat"

# Sketch on YZ plane
sketch20 = body.newObject("Sketcher::SketchObject", "Sketch019")
sketch20.AttachmentSupport = (doc.getObject("YZ_Plane"), [""])
sketch20.MapMode = "FlatFace"
sketch20.addGeometry(Part.Circle(V(0, 0, 0), V(0, 0, 1), 9), False)
sketch20.addConstraint(Sketcher.Constraint("Coincident", 0, 3, -1, 1))
sketch20.addConstraint(Sketcher.Constraint("Diameter", 0, 17.8))
pad7 = body.newObject("PartDesign::Pad", "Pad006")
pad7.Profile = sketch20
pad7.Length = 5
pad7.Reversed = True

# Sketch on YZ plane
sketch21 = body.newObject("Sketcher::SketchObject", "Sketch020")
sketch21.AttachmentSupport = (doc.getObject("YZ_Plane"), [""])
sketch21.MapMode = "FlatFace"
sketch21.AttachmentOffset = App.Placement(V(0, 0, -5), App.Rotation())
sketch21.addGeometry(Part.Circle(V(0, 0, 0), V(0, 0, 1), 7), False)
sketch21.addConstraint(Sketcher.Constraint("Coincident", 0, 3, -1, 1))
sketch21.addConstraint(Sketcher.Constraint("Diameter", 0, 13.25))
doc.recompute()
hole2 = body.newObject("PartDesign::Hole", "Hole001")
hole2.Profile = sketch21
hole2.ThreadType = "None"
hole2.Diameter = 13.25
hole2.DepthType = "Dimension"
hole2.Depth = 1
hole2.DrillPoint = "Flat"
hole2.Reversed = True

# Sketch on XY plane
sketch22 = body.newObject("Sketcher::SketchObject", "Sketch021")
sketch22.AttachmentSupport = (doc.getObject("XY_Plane"), [""])
sketch22.MapMode = "FlatFace"
add_polygon(sketch22, [(-4, 3.8), (-4, 0), (-12.8, 0), (-12.8, 2.5), (-5, 2.5), (-5, 3.8)])  # lines 0-5
sketch22.addConstraint(Sketcher.Constraint("Vertical", 0))
sketch22.addConstraint(Sketcher.Constraint("Horizontal", 1))
sketch22.addConstraint(Sketcher.Constraint("Vertical", 2))
sketch22.addConstraint(Sketcher.Constraint("Horizontal", 3))
sketch22.addConstraint(Sketcher.Constraint("Vertical", 4))
sketch22.addConstraint(Sketcher.Constraint("Horizontal", 5))
sketch22.addConstraint(Sketcher.Constraint("PointOnObject", 0, 2, -1))
sketch22.addConstraint(Sketcher.Constraint("DistanceX", 5, 1, 5, 2, 1.0))
sketch22.addConstraint(Sketcher.Constraint("DistanceX", 1, 2, 1, 1, 8.8))
sketch22.addConstraint(Sketcher.Constraint("DistanceY", 2, 1, 2, 2, 2.5))
sketch22.addConstraint(Sketcher.Constraint("DistanceX", 0, 2, -1, 1, 4.0))
sketch22.addConstraint(Sketcher.Constraint("DistanceY", 0, 2, 0, 1, 3.75))
revolution2 = body.newObject("PartDesign::Revolution", "Revolution001")
revolution2.Profile = sketch22
revolution2.ReferenceAxis = (sketch22, ["H_Axis"])
revolution2.Angle = 360

# Sketch on XY plane
sketch23 = body.newObject("Sketcher::SketchObject", "Sketch022")
sketch23.AttachmentSupport = (doc.getObject("XY_Plane"), [""])
sketch23.MapMode = "FlatFace"
add_polygon(sketch23, [(75.2, 2.5), (75.2, 0), (71.8, 0), (71.8, 2.5)])  # lines 0-3
sketch23.addConstraint(Sketcher.Constraint("Vertical", 0))
sketch23.addConstraint(Sketcher.Constraint("Horizontal", 1))
sketch23.addConstraint(Sketcher.Constraint("Vertical", 2))
sketch23.addConstraint(Sketcher.Constraint("Horizontal", 3))
sketch23.addConstraint(Sketcher.Constraint("PointOnObject", 0, 2, -1))
sketch23.addConstraint(Sketcher.Constraint("DistanceX", 1, 2, 1, 1, 3.4))
sketch23.addConstraint(Sketcher.Constraint("DistanceY", 0, 2, 0, 1, 2.5))
sketch23.addConstraint(Sketcher.Constraint("DistanceX", -1, 1, 0, 2, 75.2))
revolution3 = body.newObject("PartDesign::Revolution", "Revolution002")
revolution3.Profile = sketch23
revolution3.ReferenceAxis = (sketch23, ["H_Axis"])
revolution3.Angle = 360

# Sketch on YZ plane
sketch24 = body.newObject("Sketcher::SketchObject", "Sketch023")
sketch24.AttachmentSupport = (doc.getObject("YZ_Plane"), [""])
sketch24.MapMode = "FlatFace"
sketch24.AttachmentOffset = App.Placement(V(0, 0, 63.3), App.Rotation())
sketch24.addGeometry(Part.Circle(V(15, -6.5, 0), V(0, 0, 1), 1.2), False)
sketch24.addConstraint(Sketcher.Constraint("Diameter", 0, 2.5))
sketch24.addConstraint(Sketcher.Constraint("DistanceX", -1, 1, 0, 3, 15.0))
sketch24.addConstraint(Sketcher.Constraint("DistanceY", 0, 3, -1, 1, 6.5))
doc.recompute()
hole3 = body.newObject("PartDesign::Hole", "Hole002")
hole3.Profile = sketch24
hole3.ThreadType = "None"
hole3.Diameter = 2.5
hole3.DepthType = "Dimension"
hole3.Depth = 0.1
hole3.DrillPoint = "Flat"

# Sketch on YZ plane
sketch25 = body.newObject("Sketcher::SketchObject", "Sketch024")
sketch25.AttachmentSupport = (doc.getObject("YZ_Plane"), [""])
sketch25.MapMode = "FlatFace"
sketch25.addGeometry(Part.Circle(V(14.5, 0, 0), V(0, 0, 1), 1.6), False)
sketch25.addGeometry(Part.Circle(V(-14.5, 0, 0), V(0, 0, 1), 1.6), False)
sketch25.addConstraint(Sketcher.Constraint("Equal", 0, 1))
sketch25.addConstraint(Sketcher.Constraint("Symmetric", 0, 3, 1, 3, -1, 1))
sketch25.addConstraint(Sketcher.Constraint("PointOnObject", 0, 3, -1))
sketch25.addConstraint(Sketcher.Constraint("Diameter", 0, 3.3))
sketch25.addConstraint(Sketcher.Constraint("DistanceX", 1, 3, 0, 3, 29.0))
doc.recompute()
hole4 = body.newObject("PartDesign::Hole", "Hole003")
hole4.Profile = sketch25
hole4.ThreadType = "None"
hole4.Diameter = 3.3
hole4.DepthType = "Dimension"
hole4.Depth = 11.5
hole4.DrillPoint = "Angled"
hole4.DrillPointAngle = 118
hole4.Reversed = True
doc.recompute()

chamfer = body.newObject("PartDesign::Chamfer", "Chamfer")
chamfer.Base = (hole4, edges_at(hole4, [
    (74.25, 17.25, -2.3),
    (74.25, 17.25, 2.3),
    (74.25, -17.25, -2.3),
    (74.25, -17.25, 2.3),
]))
chamfer.Size = 0.5
doc.recompute()

fillet = body.newObject("PartDesign::Fillet", "Fillet")
fillet.Base = (chamfer, edges_at(chamfer, [(-12.8, -2.5, 0)]))
fillet.Radius = 0.25
doc.recompute()

fillet2 = body.newObject("PartDesign::Fillet", "Fillet001")
fillet2.Base = (fillet, edges_at(fillet, [(-5, 0, -8.9)]))
fillet2.Radius = 0.75
doc.recompute()

fillet3 = body.newObject("PartDesign::Fillet", "Fillet002")
fillet3.Base = (fillet2, edges_at(fillet2, [(72.8, 0, 8.75)]))
fillet3.Radius = 1
doc.recompute()

fillet4 = body.newObject("PartDesign::Fillet", "Fillet003")
fillet4.Base = (fillet3, edges_at(fillet3, [(0, 0, -21.15)]))
fillet4.Radius = 2.5

doc.recompute()
